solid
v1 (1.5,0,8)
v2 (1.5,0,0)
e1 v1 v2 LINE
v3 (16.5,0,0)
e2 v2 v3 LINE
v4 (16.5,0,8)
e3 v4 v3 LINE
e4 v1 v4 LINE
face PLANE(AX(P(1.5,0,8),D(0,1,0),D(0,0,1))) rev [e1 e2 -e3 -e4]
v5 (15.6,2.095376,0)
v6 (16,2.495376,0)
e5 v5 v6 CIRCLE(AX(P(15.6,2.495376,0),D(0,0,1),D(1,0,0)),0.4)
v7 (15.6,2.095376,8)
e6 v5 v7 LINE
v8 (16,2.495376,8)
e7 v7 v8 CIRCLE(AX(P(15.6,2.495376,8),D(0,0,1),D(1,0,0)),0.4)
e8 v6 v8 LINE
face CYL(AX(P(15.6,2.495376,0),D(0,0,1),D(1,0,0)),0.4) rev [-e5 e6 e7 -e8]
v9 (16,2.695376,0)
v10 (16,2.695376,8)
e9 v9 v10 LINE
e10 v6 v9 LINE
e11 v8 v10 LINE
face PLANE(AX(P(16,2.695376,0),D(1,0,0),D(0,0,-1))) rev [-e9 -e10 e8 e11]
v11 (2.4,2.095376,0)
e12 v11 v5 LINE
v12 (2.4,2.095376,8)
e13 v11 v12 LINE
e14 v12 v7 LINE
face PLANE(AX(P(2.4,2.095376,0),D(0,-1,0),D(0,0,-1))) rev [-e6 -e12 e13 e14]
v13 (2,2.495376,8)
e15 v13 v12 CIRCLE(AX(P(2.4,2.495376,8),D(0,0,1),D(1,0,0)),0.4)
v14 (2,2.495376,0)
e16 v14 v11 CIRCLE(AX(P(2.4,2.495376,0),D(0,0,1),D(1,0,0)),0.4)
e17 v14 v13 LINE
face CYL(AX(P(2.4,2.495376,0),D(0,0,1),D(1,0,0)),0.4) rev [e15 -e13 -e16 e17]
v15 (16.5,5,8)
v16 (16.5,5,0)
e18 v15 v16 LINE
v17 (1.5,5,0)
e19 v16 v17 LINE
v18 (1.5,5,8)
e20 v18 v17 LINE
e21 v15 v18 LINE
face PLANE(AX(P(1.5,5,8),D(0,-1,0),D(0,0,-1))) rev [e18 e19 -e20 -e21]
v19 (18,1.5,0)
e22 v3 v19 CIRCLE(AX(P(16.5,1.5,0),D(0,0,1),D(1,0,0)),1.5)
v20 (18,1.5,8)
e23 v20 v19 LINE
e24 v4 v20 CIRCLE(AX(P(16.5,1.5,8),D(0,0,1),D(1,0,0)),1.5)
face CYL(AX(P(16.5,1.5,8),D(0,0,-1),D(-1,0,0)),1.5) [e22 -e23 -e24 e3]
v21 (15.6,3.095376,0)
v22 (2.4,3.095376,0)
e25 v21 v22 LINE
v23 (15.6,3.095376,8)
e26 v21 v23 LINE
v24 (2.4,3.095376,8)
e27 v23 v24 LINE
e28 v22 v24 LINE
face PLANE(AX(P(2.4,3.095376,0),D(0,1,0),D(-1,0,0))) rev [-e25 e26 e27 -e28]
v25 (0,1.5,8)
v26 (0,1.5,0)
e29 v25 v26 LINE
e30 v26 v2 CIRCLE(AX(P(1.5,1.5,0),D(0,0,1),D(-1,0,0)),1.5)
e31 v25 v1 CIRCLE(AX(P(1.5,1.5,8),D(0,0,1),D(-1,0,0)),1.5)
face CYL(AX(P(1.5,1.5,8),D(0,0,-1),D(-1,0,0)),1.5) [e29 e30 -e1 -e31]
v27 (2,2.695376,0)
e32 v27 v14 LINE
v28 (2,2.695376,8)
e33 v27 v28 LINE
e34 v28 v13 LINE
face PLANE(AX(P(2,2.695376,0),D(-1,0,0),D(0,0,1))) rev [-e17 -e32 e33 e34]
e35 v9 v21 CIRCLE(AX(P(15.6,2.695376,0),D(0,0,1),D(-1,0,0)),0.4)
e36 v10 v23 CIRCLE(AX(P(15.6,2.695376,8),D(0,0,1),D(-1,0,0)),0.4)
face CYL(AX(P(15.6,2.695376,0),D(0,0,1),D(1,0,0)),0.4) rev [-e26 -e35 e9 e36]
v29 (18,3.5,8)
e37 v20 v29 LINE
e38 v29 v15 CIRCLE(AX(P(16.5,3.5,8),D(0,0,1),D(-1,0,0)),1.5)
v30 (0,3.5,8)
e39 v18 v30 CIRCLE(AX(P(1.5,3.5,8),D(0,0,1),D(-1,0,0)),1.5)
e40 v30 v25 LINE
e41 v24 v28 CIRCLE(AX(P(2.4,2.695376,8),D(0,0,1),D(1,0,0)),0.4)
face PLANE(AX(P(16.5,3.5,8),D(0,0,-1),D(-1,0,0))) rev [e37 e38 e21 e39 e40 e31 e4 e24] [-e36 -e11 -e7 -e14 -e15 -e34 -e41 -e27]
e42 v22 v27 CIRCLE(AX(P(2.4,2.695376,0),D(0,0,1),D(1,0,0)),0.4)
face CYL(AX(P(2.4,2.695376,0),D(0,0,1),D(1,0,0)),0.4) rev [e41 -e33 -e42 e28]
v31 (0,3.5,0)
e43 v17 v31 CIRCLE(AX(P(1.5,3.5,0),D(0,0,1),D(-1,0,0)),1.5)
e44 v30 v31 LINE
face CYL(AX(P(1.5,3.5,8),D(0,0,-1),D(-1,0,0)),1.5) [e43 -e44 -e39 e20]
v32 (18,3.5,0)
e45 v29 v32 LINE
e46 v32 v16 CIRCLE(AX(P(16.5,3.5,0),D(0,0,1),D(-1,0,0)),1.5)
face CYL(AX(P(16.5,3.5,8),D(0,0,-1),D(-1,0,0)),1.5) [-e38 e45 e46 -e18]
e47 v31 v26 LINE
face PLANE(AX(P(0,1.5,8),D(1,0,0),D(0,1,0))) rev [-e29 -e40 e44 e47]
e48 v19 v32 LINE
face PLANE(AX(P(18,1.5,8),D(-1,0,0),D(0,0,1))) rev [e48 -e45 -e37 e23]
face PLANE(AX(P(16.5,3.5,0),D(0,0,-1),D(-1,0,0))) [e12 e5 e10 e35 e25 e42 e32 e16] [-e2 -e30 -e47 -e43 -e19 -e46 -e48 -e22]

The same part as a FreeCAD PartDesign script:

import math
import FreeCAD as App
import Part
import Sketcher

V = App.Vector

doc = App.newDocument("Part")
body = doc.addObject("PartDesign::Body", "Body")

sketch1 = body.newObject("Sketcher::SketchObject", "Sketch")
sketch1.AttachmentSupport = (doc.getObject("XY_Plane"), [""])
sketch1.MapMode = "FlatFace"
sketch1.addGeometry(Part.LineSegment(V(1.5, 0, 0), V(16.5, 0, 0)), False)
sketch1.addGeometry(Part.ArcOfCircle(Part.Circle(V(16.5, 1.5, 0), V(0, 0, 1), 1.5), math.radians(-90), math.radians(0)), False)
sketch1.addGeometry(Part.LineSegment(V(18, 1.5, 0), V(18, 3.5, 0)), False)
sketch1.addGeometry(Part.ArcOfCircle(Part.Circle(V(16.5, 3.5, 0), V(0, 0, 1), 1.5), math.radians(0), math.radians(90)), False)
sketch1.addGeometry(Part.LineSegment(V(16.5, 5, 0), V(1.5, 5, 0)), False)
sketch1.addGeometry(Part.ArcOfCircle(Part.Circle(V(1.5, 3.5, 0), V(0, 0, 1), 1.5), math.radians(90), math.radians(180)), False)
sketch1.addGeometry(Part.LineSegment(V(0, 3.5, 0), V(0, 1.5, 0)), False)
sketch1.addGeometry(Part.ArcOfCircle(Part.Circle(V(1.5, 1.5, 0), V(0, 0, 1), 1.5), math.radians(180), math.radians(270)), False)
sketch1.addConstraint(Sketcher.Constraint("Tangent", 0, 2, 1, 1))
sketch1.addConstraint(Sketcher.Constraint("Tangent", 1, 2, 2, 1))
sketch1.addConstraint(Sketcher.Constraint("Tangent", 2, 2, 3, 1))
sketch1.addConstraint(Sketcher.Constraint("Tangent", 3, 2, 4, 1))
sketch1.addConstraint(Sketcher.Constraint("Tangent", 4, 2, 5, 1))
sketch1.addConstraint(Sketcher.Constraint("Tangent", 5, 2, 6, 1))
sketch1.addConstraint(Sketcher.Constraint("Tangent", 6, 2, 7, 1))
sketch1.addConstraint(Sketcher.Constraint("Tangent", 7, 2, 0, 1))
sketch1.addConstraint(Sketcher.Constraint("Horizontal", 0))
sketch1.addConstraint(Sketcher.Constraint("Vertical", 2))
sketch1.addConstraint(Sketcher.Constraint("Horizontal", 4))
sketch1.addConstraint(Sketcher.Constraint("Vertical", 6))
sketch1.addConstraint(Sketcher.Constraint("Equal", 1, 3))
sketch1.addConstraint(Sketcher.Constraint("Equal", 3, 5))
sketch1.addConstraint(Sketcher.Constraint("Equal", 5, 7))
sketch1.addConstraint(Sketcher.Constraint("PointOnObject", 0, 2, -1))
sketch1.addConstraint(Sketcher.Constraint("PointOnObject", 5, 2, -2))
sketch1.addConstraint(Sketcher.Constraint("Radius", 1, 1.5))
sketch1.addConstraint(Sketcher.Constraint("DistanceX", 0, 1, 0, 2, 15.0))
sketch1.addConstraint(Sketcher.Constraint("DistanceY", 2, 1, 2, 2, 2.0))
pad1 = body.newObject("PartDesign::Pad", "Pad")
pad1.Profile = sketch1
pad1.Length = 8

sketch2 = body.newObject("Sketcher::SketchObject", "Sketch001")
sketch2.AttachmentSupport = (doc.getObject("XY_Plane"), [""])
sketch2.MapMode = "FlatFace"
sketch2.AttachmentOffset = App.Placement(V(0, 0, 8), App.Rotation())
sketch2.addGeometry(Part.LineSegment(V(15.6, 3.1, 0), V(2.4, 3.1, 0)), False)
sketch2.addGeometry(Part.ArcOfCircle(Part.Circle(V(2.4, 2.7, 0), V(0, 0, 1), 0.4), math.radians(90), math.radians(180)), False)
sketch2.addGeometry(Part.LineSegment(V(2, 2.7, 0), V(2, 2.5, 0)), False)
sketch2.addGeometry(Part.ArcOfCircle(Part.Circle(V(2.4, 2.5, 0), V(0, 0, 1), 0.4), math.radians(180), math.radians(270)), False)
sketch2.addGeometry(Part.LineSegment(V(2.4, 2.1, 0), V(15.6, 2.1, 0)), False)
sketch2.addGeometry(Part.ArcOfCircle(Part.Circle(V(15.6, 2.5, 0), V(0, 0, 1), 0.4), math.radians(-90), math.radians(0)), False)
sketch2.addGeometry(Part.LineSegment(V(16, 2.5, 0), V(16, 2.7, 0)), False)
sketch2.addGeometry(Part.ArcOfCircle(Part.Circle(V(15.6, 2.7, 0), V(0, 0, 1), 0.4), math.radians(0), math.radians(90)), False)
sketch2.addConstraint(Sketcher.Constraint("Tangent", 0, 2, 1, 1))
sketch2.addConstraint(Sketcher.Constraint("Tangent", 1, 2, 2, 1))
sketch2.addConstraint(Sketcher.Constraint("Tangent", 2, 2, 3, 1))
sketch2.addConstraint(Sketcher.Constraint("Tangent", 3, 2, 4, 1))
sketch2.addConstraint(Sketcher.Constraint("Tangent", 4, 2, 5, 1))
sketch2.addConstraint(Sketcher.Constraint("Tangent", 5, 2, 6, 1))
sketch2.addConstraint(Sketcher.Constraint("Tangent", 6, 2, 7, 1))
sketch2.addConstraint(Sketcher.Constraint("Tangent", 7, 2, 0, 1))
sketch2.addConstraint(Sketcher.Constraint("Horizontal", 0))
sketch2.addConstraint(Sketcher.Constraint("Vertical", 2))
sketch2.addConstraint(Sketcher.Constraint("Horizontal", 4))
sketch2.addConstraint(Sketcher.Constraint("Vertical", 6))
sketch2.addConstraint(Sketcher.Constraint("Equal", 1, 3))
sketch2.addConstraint(Sketcher.Constraint("Equal", 3, 5))
sketch2.addConstraint(Sketcher.Constraint("Equal", 5, 7))
sketch2.addConstraint(Sketcher.Constraint("Radius", 1, 0.4))
sketch2.addConstraint(Sketcher.Constraint("DistanceX", 0, 2, 0, 1, 13.2))
sketch2.addConstraint(Sketcher.Constraint("DistanceY", 2, 2, 2, 1, 0.2))
sketch2.addConstraint(Sketcher.Constraint("DistanceX", -1, 1, 1, 2, 2.0))
sketch2.addConstraint(Sketcher.Constraint("DistanceY", -1, 1, 1, 3, 2.695376))
pocket1 = body.newObject("PartDesign::Pocket", "Pocket")
pocket1.Profile = sketch2
pocket1.Length = 8

doc.recompute()
